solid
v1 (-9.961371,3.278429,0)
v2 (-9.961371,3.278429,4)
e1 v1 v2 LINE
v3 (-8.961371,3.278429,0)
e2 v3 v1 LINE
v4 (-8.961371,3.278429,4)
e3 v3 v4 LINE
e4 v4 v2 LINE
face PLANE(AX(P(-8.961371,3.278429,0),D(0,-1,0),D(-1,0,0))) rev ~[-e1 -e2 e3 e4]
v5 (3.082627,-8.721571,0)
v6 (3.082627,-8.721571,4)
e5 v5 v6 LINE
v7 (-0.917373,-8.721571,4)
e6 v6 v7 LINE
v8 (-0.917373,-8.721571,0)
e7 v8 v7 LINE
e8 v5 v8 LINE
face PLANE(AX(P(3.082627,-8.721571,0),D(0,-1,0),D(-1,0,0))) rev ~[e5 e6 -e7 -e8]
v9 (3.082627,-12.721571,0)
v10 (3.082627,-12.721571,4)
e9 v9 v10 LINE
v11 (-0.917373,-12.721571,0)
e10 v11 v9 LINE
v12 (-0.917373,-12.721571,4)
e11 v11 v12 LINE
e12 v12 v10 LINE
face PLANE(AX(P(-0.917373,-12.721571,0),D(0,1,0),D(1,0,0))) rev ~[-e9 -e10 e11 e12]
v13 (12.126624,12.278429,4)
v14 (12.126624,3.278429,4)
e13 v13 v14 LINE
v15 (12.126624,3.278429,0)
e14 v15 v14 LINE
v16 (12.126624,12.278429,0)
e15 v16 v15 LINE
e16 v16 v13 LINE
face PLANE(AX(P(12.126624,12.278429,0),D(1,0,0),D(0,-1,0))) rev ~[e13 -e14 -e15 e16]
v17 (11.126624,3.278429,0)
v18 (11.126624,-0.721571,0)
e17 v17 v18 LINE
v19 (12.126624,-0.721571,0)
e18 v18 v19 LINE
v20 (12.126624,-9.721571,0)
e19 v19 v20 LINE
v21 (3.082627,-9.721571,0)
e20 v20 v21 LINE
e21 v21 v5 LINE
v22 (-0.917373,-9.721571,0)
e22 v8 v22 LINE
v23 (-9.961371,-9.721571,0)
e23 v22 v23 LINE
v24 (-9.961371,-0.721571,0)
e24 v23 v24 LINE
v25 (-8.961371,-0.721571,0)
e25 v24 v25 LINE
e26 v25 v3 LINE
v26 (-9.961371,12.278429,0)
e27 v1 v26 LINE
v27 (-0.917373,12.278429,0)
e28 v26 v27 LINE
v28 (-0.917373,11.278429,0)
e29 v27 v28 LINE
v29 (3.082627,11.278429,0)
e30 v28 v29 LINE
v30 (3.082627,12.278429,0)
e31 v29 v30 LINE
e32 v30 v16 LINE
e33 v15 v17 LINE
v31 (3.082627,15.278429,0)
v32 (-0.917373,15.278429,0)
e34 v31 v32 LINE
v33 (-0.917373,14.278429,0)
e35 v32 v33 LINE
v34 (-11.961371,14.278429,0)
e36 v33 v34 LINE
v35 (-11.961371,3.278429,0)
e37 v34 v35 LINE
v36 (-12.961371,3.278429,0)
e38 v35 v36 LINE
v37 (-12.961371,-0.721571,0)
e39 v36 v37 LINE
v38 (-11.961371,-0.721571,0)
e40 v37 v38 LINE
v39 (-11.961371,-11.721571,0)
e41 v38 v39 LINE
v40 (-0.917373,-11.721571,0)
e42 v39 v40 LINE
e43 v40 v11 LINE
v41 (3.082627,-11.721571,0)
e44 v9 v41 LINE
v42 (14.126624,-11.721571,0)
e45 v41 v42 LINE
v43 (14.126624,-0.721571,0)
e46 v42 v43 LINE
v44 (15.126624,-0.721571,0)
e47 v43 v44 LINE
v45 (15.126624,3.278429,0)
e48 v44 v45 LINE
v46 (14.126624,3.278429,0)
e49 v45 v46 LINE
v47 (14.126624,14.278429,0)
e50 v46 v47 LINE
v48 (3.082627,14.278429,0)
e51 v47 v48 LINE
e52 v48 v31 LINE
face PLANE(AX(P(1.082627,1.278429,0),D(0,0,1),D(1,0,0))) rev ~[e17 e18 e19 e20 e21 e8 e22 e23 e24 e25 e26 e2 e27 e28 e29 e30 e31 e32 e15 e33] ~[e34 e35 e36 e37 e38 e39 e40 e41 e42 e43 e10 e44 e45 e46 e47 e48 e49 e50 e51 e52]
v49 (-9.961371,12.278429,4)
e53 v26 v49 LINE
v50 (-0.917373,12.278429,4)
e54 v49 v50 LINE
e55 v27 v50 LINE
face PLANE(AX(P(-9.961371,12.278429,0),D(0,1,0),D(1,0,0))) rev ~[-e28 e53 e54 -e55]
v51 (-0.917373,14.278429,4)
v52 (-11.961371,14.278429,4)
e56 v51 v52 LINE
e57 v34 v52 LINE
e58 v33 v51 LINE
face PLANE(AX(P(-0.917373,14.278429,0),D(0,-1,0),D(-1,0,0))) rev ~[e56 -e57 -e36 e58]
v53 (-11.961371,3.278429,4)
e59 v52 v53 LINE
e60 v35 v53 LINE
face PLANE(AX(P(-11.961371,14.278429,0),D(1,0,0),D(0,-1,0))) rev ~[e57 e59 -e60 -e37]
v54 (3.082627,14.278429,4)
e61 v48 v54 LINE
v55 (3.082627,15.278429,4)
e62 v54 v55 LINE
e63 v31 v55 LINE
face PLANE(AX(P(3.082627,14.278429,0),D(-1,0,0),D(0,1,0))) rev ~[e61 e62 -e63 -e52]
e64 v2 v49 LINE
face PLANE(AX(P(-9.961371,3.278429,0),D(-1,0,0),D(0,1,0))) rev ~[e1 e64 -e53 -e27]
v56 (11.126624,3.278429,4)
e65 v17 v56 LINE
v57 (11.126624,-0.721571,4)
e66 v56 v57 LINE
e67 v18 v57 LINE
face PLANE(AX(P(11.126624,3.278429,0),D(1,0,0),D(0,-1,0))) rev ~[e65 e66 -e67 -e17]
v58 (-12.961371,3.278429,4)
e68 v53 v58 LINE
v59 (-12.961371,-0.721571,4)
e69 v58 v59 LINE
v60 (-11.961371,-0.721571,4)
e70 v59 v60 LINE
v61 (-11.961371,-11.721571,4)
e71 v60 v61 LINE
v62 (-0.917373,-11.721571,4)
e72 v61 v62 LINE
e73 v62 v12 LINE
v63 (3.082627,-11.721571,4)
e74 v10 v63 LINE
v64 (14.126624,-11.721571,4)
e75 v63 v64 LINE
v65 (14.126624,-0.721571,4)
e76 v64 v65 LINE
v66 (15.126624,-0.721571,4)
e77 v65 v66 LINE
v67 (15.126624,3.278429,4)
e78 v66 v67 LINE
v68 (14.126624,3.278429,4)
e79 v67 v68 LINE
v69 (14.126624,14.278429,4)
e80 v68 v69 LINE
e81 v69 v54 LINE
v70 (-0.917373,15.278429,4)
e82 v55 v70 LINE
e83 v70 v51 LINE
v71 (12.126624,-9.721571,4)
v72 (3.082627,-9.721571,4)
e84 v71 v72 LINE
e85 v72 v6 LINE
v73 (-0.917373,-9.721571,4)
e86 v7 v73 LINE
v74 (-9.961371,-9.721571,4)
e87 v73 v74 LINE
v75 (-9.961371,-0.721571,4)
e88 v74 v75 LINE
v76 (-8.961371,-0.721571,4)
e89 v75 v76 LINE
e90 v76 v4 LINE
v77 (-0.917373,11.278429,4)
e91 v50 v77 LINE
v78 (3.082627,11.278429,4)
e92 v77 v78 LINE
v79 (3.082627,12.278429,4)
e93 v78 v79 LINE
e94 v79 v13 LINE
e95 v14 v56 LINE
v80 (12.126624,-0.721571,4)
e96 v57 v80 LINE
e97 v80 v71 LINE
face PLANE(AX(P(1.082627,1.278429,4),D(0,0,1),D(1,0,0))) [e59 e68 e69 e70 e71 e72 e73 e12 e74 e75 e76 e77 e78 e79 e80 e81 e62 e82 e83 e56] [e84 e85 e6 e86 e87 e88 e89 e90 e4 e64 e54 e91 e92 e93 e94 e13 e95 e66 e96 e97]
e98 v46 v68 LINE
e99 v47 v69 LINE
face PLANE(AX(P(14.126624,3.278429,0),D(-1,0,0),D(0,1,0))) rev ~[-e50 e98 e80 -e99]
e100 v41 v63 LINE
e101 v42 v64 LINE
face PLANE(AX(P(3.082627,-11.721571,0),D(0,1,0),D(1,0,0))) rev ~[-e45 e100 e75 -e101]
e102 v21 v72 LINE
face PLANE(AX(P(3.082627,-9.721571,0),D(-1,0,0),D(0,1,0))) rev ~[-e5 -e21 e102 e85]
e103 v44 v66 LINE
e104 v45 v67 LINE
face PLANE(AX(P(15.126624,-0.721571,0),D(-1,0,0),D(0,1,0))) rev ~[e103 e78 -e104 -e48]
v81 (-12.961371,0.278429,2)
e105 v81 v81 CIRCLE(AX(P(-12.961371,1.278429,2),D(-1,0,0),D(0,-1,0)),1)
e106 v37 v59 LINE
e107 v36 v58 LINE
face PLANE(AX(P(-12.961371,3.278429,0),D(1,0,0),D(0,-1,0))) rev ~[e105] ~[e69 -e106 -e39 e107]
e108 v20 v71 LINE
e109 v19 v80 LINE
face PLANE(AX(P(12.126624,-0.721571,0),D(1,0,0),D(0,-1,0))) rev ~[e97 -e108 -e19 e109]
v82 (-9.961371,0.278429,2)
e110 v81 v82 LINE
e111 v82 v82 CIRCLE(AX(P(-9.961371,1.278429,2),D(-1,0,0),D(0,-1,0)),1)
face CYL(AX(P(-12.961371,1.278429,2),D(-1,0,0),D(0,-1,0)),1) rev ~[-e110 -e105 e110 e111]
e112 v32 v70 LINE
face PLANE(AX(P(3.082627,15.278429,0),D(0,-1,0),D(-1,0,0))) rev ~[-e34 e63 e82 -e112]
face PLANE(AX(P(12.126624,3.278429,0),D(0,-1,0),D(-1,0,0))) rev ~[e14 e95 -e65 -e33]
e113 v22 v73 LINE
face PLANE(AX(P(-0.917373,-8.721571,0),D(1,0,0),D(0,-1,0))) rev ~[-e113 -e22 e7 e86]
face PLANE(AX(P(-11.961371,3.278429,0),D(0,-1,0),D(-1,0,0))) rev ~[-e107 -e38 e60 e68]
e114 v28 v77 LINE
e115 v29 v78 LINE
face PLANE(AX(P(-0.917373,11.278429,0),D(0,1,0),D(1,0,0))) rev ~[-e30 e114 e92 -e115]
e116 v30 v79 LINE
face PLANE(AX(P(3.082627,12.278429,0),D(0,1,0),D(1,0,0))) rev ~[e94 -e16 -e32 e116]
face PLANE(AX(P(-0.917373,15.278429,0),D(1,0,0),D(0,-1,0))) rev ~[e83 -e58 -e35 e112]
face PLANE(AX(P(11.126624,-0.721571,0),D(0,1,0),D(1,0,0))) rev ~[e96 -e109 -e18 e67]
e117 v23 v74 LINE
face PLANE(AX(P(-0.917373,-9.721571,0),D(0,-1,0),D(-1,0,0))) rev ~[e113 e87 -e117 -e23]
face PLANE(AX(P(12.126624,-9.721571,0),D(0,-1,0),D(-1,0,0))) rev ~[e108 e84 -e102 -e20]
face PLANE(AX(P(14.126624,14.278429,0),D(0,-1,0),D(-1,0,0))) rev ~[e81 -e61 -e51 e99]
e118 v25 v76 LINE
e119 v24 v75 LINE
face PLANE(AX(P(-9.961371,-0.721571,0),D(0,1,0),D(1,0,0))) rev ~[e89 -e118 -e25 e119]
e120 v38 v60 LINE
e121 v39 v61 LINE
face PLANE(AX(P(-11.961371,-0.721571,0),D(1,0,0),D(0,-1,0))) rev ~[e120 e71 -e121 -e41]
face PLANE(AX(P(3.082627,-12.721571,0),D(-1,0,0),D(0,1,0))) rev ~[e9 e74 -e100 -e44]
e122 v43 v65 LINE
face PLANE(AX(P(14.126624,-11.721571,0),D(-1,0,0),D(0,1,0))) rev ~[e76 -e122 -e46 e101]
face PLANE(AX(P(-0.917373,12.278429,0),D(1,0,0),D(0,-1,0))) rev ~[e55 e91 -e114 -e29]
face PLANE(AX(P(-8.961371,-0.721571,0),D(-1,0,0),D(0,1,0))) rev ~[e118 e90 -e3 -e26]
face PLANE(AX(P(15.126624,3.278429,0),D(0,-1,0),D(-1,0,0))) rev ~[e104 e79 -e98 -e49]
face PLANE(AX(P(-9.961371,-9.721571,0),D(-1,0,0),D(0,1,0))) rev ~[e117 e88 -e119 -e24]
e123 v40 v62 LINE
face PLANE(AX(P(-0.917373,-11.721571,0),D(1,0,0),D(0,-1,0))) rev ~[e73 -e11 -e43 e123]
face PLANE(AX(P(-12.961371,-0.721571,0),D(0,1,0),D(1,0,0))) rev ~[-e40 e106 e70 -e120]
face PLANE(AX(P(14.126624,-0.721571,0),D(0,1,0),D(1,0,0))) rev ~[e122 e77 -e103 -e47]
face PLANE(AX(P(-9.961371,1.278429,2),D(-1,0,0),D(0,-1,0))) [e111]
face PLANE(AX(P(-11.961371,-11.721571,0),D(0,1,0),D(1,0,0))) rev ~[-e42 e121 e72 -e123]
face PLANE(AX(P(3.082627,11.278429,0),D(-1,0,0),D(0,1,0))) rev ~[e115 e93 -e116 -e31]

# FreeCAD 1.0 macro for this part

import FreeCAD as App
import Part
import Sketcher

doc = App.newDocument("Part")
body = doc.addObject("PartDesign::Body", "Body")

# Sketch on XY plane
sketch1 = body.newObject("Sketcher::SketchObject", "Sketch")
sketch1.AttachmentSupport = (doc.getObject("XY_Plane"), [""])
sketch1.MapMode = "FlatFace"
sketch1.addGeometry([
    Part.LineSegment(App.Vector(-12.961371, -0.721571, 0), App.Vector(-11.961371, -0.721571, 0)),  # 0
    Part.LineSegment(App.Vector(-11.961371, -0.721571, 0), App.Vector(-11.961371, -11.721571, 0)),  # 1
    Part.LineSegment(App.Vector(-11.961371, -11.721571, 0), App.Vector(-0.917373, -11.721571, 0)),  # 2
    Part.LineSegment(App.Vector(-0.917373, -11.721571, 0), App.Vector(-0.917373, -12.721571, 0)),  # 3
    Part.LineSegment(App.Vector(-0.917373, -12.721571, 0), App.Vector(3.082627, -12.721571, 0)),  # 4
    Part.LineSegment(App.Vector(3.082627, -12.721571, 0), App.Vector(3.082627, -11.721571, 0)),  # 5
    Part.LineSegment(App.Vector(3.082627, -11.721571, 0), App.Vector(14.126624, -11.721571, 0)),  # 6
    Part.LineSegment(App.Vector(14.126624, -11.721571, 0), App.Vector(14.126624, -0.721571, 0)),  # 7
    Part.LineSegment(App.Vector(14.126624, -0.721571, 0), App.Vector(15.126624, -0.721571, 0)),  # 8
    Part.LineSegment(App.Vector(15.126624, -0.721571, 0), App.Vector(15.126624, 3.278429, 0)),  # 9
    Part.LineSegment(App.Vector(15.126624, 3.278429, 0), App.Vector(14.126624, 3.278429, 0)),  # 10
    Part.LineSegment(App.Vector(14.126624, 3.278429, 0), App.Vector(14.126624, 14.278429, 0)),  # 11
    Part.LineSegment(App.Vector(14.126624, 14.278429, 0), App.Vector(3.082627, 14.278429, 0)),  # 12
    Part.LineSegment(App.Vector(3.082627, 14.278429, 0), App.Vector(3.082627, 15.278429, 0)),  # 13
    Part.LineSegment(App.Vector(3.082627, 15.278429, 0), App.Vector(-0.917373, 15.278429, 0)),  # 14
    Part.LineSegment(App.Vector(-0.917373, 15.278429, 0), App.Vector(-0.917373, 14.278429, 0)),  # 15
    Part.LineSegment(App.Vector(-0.917373, 14.278429, 0), App.Vector(-11.961371, 14.278429, 0)),  # 16
    Part.LineSegment(App.Vector(-11.961371, 14.278429, 0), App.Vector(-11.961371, 3.278429, 0)),  # 17
    Part.LineSegment(App.Vector(-11.961371, 3.278429, 0), App.Vector(-12.961371, 3.278429, 0)),  # 18
    Part.LineSegment(App.Vector(-12.961371, 3.278429, 0), App.Vector(-12.961371, -0.721571, 0)),  # 19
    Part.LineSegment(App.Vector(3.082627, 11.278429, 0), App.Vector(3.082627, 12.278429, 0)),  # 20
    Part.LineSegment(App.Vector(3.082627, 12.278429, 0), App.Vector(12.126624, 12.278429, 0)),  # 21
    Part.LineSegment(App.Vector(12.126624, 12.278429, 0), App.Vector(12.126624, 3.278429, 0)),  # 22
    Part.LineSegment(App.Vector(12.126624, 3.278429, 0), App.Vector(11.126624, 3.278429, 0)),  # 23
    Part.LineSegment(App.Vector(11.126624, 3.278429, 0), App.Vector(11.126624, -0.721571, 0)),  # 24
    Part.LineSegment(App.Vector(11.126624, -0.721571, 0), App.Vector(12.126624, -0.721571, 0)),  # 25
    Part.LineSegment(App.Vector(12.126624, -0.721571, 0), App.Vector(12.126624, -9.721571, 0)),  # 26
    Part.LineSegment(App.Vector(12.126624, -9.721571, 0), App.Vector(3.082627, -9.721571, 0)),  # 27
    Part.LineSegment(App.Vector(3.082627, -9.721571, 0), App.Vector(3.082627, -8.721571, 0)),  # 28
    Part.LineSegment(App.Vector(3.082627, -8.721571, 0), App.Vector(-0.917373, -8.721571, 0)),  # 29
    Part.LineSegment(App.Vector(-0.917373, -8.721571, 0), App.Vector(-0.917373, -9.721571, 0)),  # 30
    Part.LineSegment(App.Vector(-0.917373, -9.721571, 0), App.Vector(-9.961371, -9.721571, 0)),  # 31
    Part.LineSegment(App.Vector(-9.961371, -9.721571, 0), App.Vector(-9.961371, -0.721571, 0)),  # 32
    Part.LineSegment(App.Vector(-9.961371, -0.721571, 0), App.Vector(-8.961371, -0.721571, 0)),  # 33
    Part.LineSegment(App.Vector(-8.961371, -0.721571, 0), App.Vector(-8.961371, 3.278429, 0)),  # 34
    Part.LineSegment(App.Vector(-8.961371, 3.278429, 0), App.Vector(-9.961371, 3.278429, 0)),  # 35
    Part.LineSegment(App.Vector(-9.961371, 3.278429, 0), App.Vector(-9.961371, 12.278429, 0)),  # 36
    Part.LineSegment(App.Vector(-9.961371, 12.278429, 0), App.Vector(-0.917373, 12.278429, 0)),  # 37
    Part.LineSegment(App.Vector(-0.917373, 12.278429, 0), App.Vector(-0.917373, 11.278429, 0)),  # 38
    Part.LineSegment(App.Vector(-0.917373, 11.278429, 0), App.Vector(3.082627, 11.278429, 0)),  # 39
], False)
sketch1.addConstraint([
    Sketcher.Constraint("Coincident", 0, 2, 1, 1),
    Sketcher.Constraint("Coincident", 1, 2, 2, 1),
    Sketcher.Constraint("Coincident", 2, 2, 3, 1),
    Sketcher.Constraint("Coincident", 3, 2, 4, 1),
    Sketcher.Constraint("Coincident", 4, 2, 5, 1),
    Sketcher.Constraint("Coincident", 5, 2, 6, 1),
    Sketcher.Constraint("Coincident", 6, 2, 7, 1),
    Sketcher.Constraint("Coincident", 7, 2, 8, 1),
    Sketcher.Constraint("Coincident", 8, 2, 9, 1),
    Sketcher.Constraint("Coincident", 9, 2, 10, 1),
    Sketcher.Constraint("Coincident", 10, 2, 11, 1),
    Sketcher.Constraint("Coincident", 11, 2, 12, 1),
    Sketcher.Constraint("Coincident", 12, 2, 13, 1),
    Sketcher.Constraint("Coincident", 13, 2, 14, 1),
    Sketcher.Constraint("Coincident", 14, 2, 15, 1),
    Sketcher.Constraint("Coincident", 15, 2, 16, 1),
    Sketcher.Constraint("Coincident", 16, 2, 17, 1),
    Sketcher.Constraint("Coincident", 17, 2, 18, 1),
    Sketcher.Constraint("Coincident", 18, 2, 19, 1),
    Sketcher.Constraint("Coincident", 19, 2, 0, 1),
    Sketcher.Constraint("Coincident", 20, 2, 21, 1),
    Sketcher.Constraint("Coincident", 21, 2, 22, 1),
    Sketcher.Constraint("Coincident", 22, 2, 23, 1),
    Sketcher.Constraint("Coincident", 23, 2, 24, 1),
    Sketcher.Constraint("Coincident", 24, 2, 25, 1),
    Sketcher.Constraint("Coincident", 25, 2, 26, 1),
    Sketcher.Constraint("Coincident", 26, 2, 27, 1),
    Sketcher.Constraint("Coincident", 27, 2, 28, 1),
    Sketcher.Constraint("Coincident", 28, 2, 29, 1),
    Sketcher.Constraint("Coincident", 29, 2, 30, 1),
    Sketcher.Constraint("Coincident", 30, 2, 31, 1),
    Sketcher.Constraint("Coincident", 31, 2, 32, 1),
    Sketcher.Constraint("Coincident", 32, 2, 33, 1),
    Sketcher.Constraint("Coincident", 33, 2, 34, 1),
    Sketcher.Constraint("Coincident", 34, 2, 35, 1),
    Sketcher.Constraint("Coincident", 35, 2, 36, 1),
    Sketcher.Constraint("Coincident", 36, 2, 37, 1),
    Sketcher.Constraint("Coincident", 37, 2, 38, 1),
    Sketcher.Constraint("Coincident", 38, 2, 39, 1),
    Sketcher.Constraint("Coincident", 39, 2, 20, 1),
    Sketcher.Constraint("Horizontal", 0),
    Sketcher.Constraint("Vertical", 1),
    Sketcher.Constraint("Horizontal", 2),
    Sketcher.Constraint("Vertical", 3),
    Sketcher.Constraint("Horizontal", 4),
    Sketcher.Constraint("Vertical", 5),
    Sketcher.Constraint("Horizontal", 6),
    Sketcher.Constraint("Vertical", 7),
    Sketcher.Constraint("Horizontal", 8),
    Sketcher.Constraint("Vertical", 9),
    Sketcher.Constraint("Horizontal", 10),
    Sketcher.Constraint("Vertical", 11),
    Sketcher.Constraint("Horizontal", 12),
    Sketcher.Constraint("Vertical", 13),
    Sketcher.Constraint("Horizontal", 14),
    Sketcher.Constraint("Vertical", 15),
    Sketcher.Constraint("Horizontal", 16),
    Sketcher.Constraint("Vertical", 17),
    Sketcher.Constraint("Horizontal", 18),
    Sketcher.Constraint("Vertical", 19),
    Sketcher.Constraint("Vertical", 20),
    Sketcher.Constraint("Horizontal", 21),
    Sketcher.Constraint("Vertical", 22),
    Sketcher.Constraint("Horizontal", 23),
    Sketcher.Constraint("Vertical", 24),
    Sketcher.Constraint("Horizontal", 25),
    Sketcher.Constraint("Vertical", 26),
    Sketcher.Constraint("Horizontal", 27),
    Sketcher.Constraint("Vertical", 28),
    Sketcher.Constraint("Horizontal", 29),
    Sketcher.Constraint("Vertical", 30),
    Sketcher.Constraint("Horizontal", 31),
    Sketcher.Constraint("Vertical", 32),
    Sketcher.Constraint("Horizontal", 33),
    Sketcher.Constraint("Vertical", 34),
    Sketcher.Constraint("Horizontal", 35),
    Sketcher.Constraint("Vertical", 36),
    Sketcher.Constraint("Horizontal", 37),
    Sketcher.Constraint("Vertical", 38),
    Sketcher.Constraint("Horizontal", 39),
    Sketcher.Constraint("Horizontal", 2, 2, 5, 2),
    Sketcher.Constraint("Horizontal", 0, 2, 7, 2),
    Sketcher.Constraint("Horizontal", 12, 2, 15, 2),
    Sketcher.Constraint("Horizontal", 10, 2, 17, 2),
    Sketcher.Constraint("Horizontal", 18, 2, 22, 2),
    Sketcher.Constraint("Horizontal", 19, 2, 24, 2),
    Sketcher.Constraint("Horizontal", 27, 2, 30, 2),
    Sketcher.Constraint("Horizontal", 25, 2, 32, 2),
    Sketcher.Constraint("Horizontal", 23, 2, 34, 2),
    Sketcher.Constraint("Horizontal", 21, 2, 36, 2),
    Sketcher.Constraint("Vertical", 7, 2, 10, 2),
    Sketcher.Constraint("Vertical", 5, 2, 12, 2),
    Sketcher.Constraint("Vertical", 3, 2, 14, 2),
    Sketcher.Constraint("Vertical", 1, 2, 16, 2),
    Sketcher.Constraint("Vertical", 13, 2, 20, 2),
    Sketcher.Constraint("Vertical", 22, 2, 25, 2),
    Sketcher.Constraint("Vertical", 20, 2, 27, 2),
    Sketcher.Constraint("Vertical", 15, 2, 29, 2),
    Sketcher.Constraint("Vertical", 32, 2, 35, 2),
    Sketcher.Constraint("Vertical", 30, 2, 37, 2),
    Sketcher.Constraint("Equal", 2, 6),
    Sketcher.Constraint("Equal", 0, 8),
    Sketcher.Constraint("Equal", 18, 23),
    Sketcher.Constraint("Equal", 27, 31),
    Sketcher.Constraint("Equal", 25, 33),
    Sketcher.Constraint("Equal", 35, 3),
    Sketcher.Constraint("Equal", 39, 9),
    Sketcher.Constraint("Equal", 7, 11),
    Sketcher.Constraint("Equal", 5, 13),
    Sketcher.Constraint("Equal", 15, 20),
    Sketcher.Constraint("Equal", 22, 26),
    Sketcher.Constraint("Equal", 20, 28),
    Sketcher.Constraint("DistanceX", 0, 1, 0, 2, 1.0),
    Sketcher.Constraint("DistanceX", 4, 1, 4, 2, 4.0),
    Sketcher.Constraint("DistanceY", 1, 2, 1, 1, 11.0),
    Sketcher.Constraint("DistanceY", 22, 2, 22, 1, 9.0),
    Sketcher.Constraint("DistanceX", 21, 2, 11, 2, 2.0),
    Sketcher.Constraint("DistanceX", 2, 1, 2, 2, 11.043997),
    Sketcher.Constraint("DistanceX", 0, 2, -1, 1, 11.961371),
    Sketcher.Constraint("DistanceY", 0, 2, -1, 1, 0.721571),
])
pad1 = body.newObject("PartDesign::Pad", "Pad")
pad1.Profile = sketch1
pad1.Length = 4

# Sketch on YZ plane
sketch2 = body.newObject("Sketcher::SketchObject", "Sketch001")
sketch2.AttachmentSupport = (doc.getObject("YZ_Plane"), [""])
sketch2.MapMode = "FlatFace"
sketch2.AttachmentOffset = App.Placement(App.Vector(0, 0, -12.961371), App.Rotation())
sketch2.addGeometry(Part.Circle(App.Vector(1.278429, 2, 0), App.Vector(0, 0, 1), 1), False)
sketch2.addConstraint([
    Sketcher.Constraint("Diameter", 0, 2.0),
    Sketcher.Constraint("DistanceY", -1, 1, 0, 3, 2.0),
    Sketcher.Constraint("DistanceX", -1, 1, 0, 3, 1.278429),
])
pocket1 = body.newObject("PartDesign::Pocket", "Pocket")
pocket1.Profile = sketch2
pocket1.Length = 3
pocket1.Reversed = True

doc.recompute()
